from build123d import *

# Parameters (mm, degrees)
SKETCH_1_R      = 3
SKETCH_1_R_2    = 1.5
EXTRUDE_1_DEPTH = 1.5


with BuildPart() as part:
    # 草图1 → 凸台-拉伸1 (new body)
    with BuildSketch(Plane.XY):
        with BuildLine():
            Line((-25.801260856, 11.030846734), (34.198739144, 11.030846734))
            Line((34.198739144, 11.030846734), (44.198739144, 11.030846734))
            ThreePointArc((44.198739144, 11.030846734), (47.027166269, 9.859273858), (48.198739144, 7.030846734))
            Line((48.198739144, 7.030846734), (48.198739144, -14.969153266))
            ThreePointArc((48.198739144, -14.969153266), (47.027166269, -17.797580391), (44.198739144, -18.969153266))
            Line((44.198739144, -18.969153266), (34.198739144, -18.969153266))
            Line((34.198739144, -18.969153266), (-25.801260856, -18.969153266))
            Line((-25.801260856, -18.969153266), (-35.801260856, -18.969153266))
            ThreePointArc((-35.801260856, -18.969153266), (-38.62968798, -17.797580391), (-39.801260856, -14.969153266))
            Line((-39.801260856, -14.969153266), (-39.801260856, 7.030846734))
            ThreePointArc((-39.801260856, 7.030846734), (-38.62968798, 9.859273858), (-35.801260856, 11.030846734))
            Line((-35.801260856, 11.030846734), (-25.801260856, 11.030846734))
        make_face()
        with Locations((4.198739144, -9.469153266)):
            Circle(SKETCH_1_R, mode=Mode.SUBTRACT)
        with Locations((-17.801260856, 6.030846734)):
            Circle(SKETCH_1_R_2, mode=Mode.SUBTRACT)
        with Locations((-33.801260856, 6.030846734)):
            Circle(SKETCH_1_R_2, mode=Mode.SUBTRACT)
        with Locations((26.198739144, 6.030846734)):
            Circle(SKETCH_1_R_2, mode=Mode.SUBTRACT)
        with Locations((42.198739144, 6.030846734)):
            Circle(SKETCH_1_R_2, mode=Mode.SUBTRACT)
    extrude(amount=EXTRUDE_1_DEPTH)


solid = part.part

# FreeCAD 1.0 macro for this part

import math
import FreeCAD as App
import Part
import Sketcher

V = App.Vector
Q = App.Units.Quantity

doc = App.newDocument("Part")
body = doc.addObject("PartDesign::Body", "Body")

# Sketch on XY plane
sketch1 = body.newObject("Sketcher::SketchObject", "Sketch")
sketch1.AttachmentSupport = (doc.getObject("XY_Plane"), [""])
sketch1.MapMode = "FlatFace"
sketch1.addGeometry(Part.ArcOfCircle(Part.Circle(V(44.2, 7, 0), V(0, 0, 1), 4), math.radians(0), math.radians(90)), False)
sketch1.addGeometry(Part.LineSegment(V(44.2, 11, 0), V(-35.8, 11, 0)), False)
sketch1.addGeometry(Part.ArcOfCircle(Part.Circle(V(-35.8, 7, 0), V(0, 0, 1), 4), math.radians(90), math.radians(180)), False)
sketch1.addGeometry(Part.LineSegment(V(-39.8, 7, 0), V(-39.8, -15, 0)), False)
sketch1.addGeometry(Part.ArcOfCircle(Part.Circle(V(-35.8, -15, 0), V(0, 0, 1), 4), math.radians(-180), math.radians(-90)), False)
sketch1.addGeometry(Part.LineSegment(V(-35.8, -19, 0), V(44.2, -19, 0)), False)
sketch1.addGeometry(Part.ArcOfCircle(Part.Circle(V(44.2, -15, 0), V(0, 0, 1), 4), math.radians(-90), math.radians(0)), False)
sketch1.addGeometry(Part.LineSegment(V(48.2, -15, 0), V(48.2, 7, 0)), False)
sketch1.addGeometry(Part.Circle(V(4.2, -9.5, 0), V(0, 0, 1), 3), False)
sketch1.addGeometry(Part.Circle(V(42.2, 6, 0), V(0, 0, 1), 1.5), False)
sketch1.addGeometry(Part.Circle(V(26.2, 6, 0), V(0, 0, 1), 1.5), False)
sketch1.addGeometry(Part.Circle(V(-17.8, 6, 0), V(0, 0, 1), 1.5), False)
sketch1.addGeometry(Part.Circle(V(-33.8, 6, 0), V(0, 0, 1), 1.5), False)
sketch1.addConstraint(Sketcher.Constraint("Tangent", 0, 2, 1, 1))
sketch1.addConstraint(Sketcher.Constraint("Tangent", 1, 2, 2, 1))
sketch1.addConstraint(Sketcher.Constraint("Tangent", 2, 2, 3, 1))
sketch1.addConstraint(Sketcher.Constraint("Tangent", 3, 2, 4, 1))
sketch1.addConstraint(Sketcher.Constraint("Tangent", 4, 2, 5, 1))
sketch1.addConstraint(Sketcher.Constraint("Tangent", 5, 2, 6, 1))
sketch1.addConstraint(Sketcher.Constraint("Tangent", 6, 2, 7, 1))
sketch1.addConstraint(Sketcher.Constraint("Tangent", 7, 2, 0, 1))
sketch1.addConstraint(Sketcher.Constraint("Horizontal", 1))
sketch1.addConstraint(Sketcher.Constraint("Vertical", 3))
sketch1.addConstraint(Sketcher.Constraint("Horizontal", 5))
sketch1.addConstraint(Sketcher.Constraint("Vertical", 7))
sketch1.addConstraint(Sketcher.Constraint("Equal", 0, 2))
sketch1.addConstraint(Sketcher.Constraint("Equal", 2, 4))
sketch1.addConstraint(Sketcher.Constraint("Equal", 4, 6))
sketch1.addConstraint(Sketcher.Constraint("Equal", 9, 10))
sketch1.addConstraint(Sketcher.Constraint("Equal", 10, 11))
sketch1.addConstraint(Sketcher.Constraint("Equal", 11, 12))
sketch1.addConstraint(Sketcher.Constraint("Horizontal", 9, 3, 10, 3))
sketch1.addConstraint(Sketcher.Constraint("Horizontal", 10, 3, 11, 3))
sketch1.addConstraint(Sketcher.Constraint("Horizontal", 11, 3, 12, 3))
sketch1.addConstraint(Sketcher.Constraint("Diameter", 8, Q("6 mm")))
sketch1.addConstraint(Sketcher.Constraint("Diameter", 9, Q("3 mm")))
sketch1.addConstraint(Sketcher.Constraint("Radius", 0, Q("4 mm")))
sketch1.addConstraint(Sketcher.Constraint("DistanceX", 1, 2, 1, 1, Q("80 mm")))
sketch1.addConstraint(Sketcher.Constraint("DistanceY", 3, 2, 3, 1, Q("22 mm")))
sketch1.addConstraint(Sketcher.Constraint("DistanceX", 4, 3, 8, 3, Q("40 mm")))
sketch1.addConstraint(Sketcher.Constraint("DistanceX", 9, 3, 0, 3, Q("2 mm")))
sketch1.addConstraint(Sketcher.Constraint("DistanceY", 9, 3, 0, 3, Q("1 mm")))
sketch1.addConstraint(Sketcher.Constraint("DistanceX", 10, 3, 9, 3, Q("16 mm")))
sketch1.addConstraint(Sketcher.Constraint("DistanceX", 2, 3, 11, 3, Q("18 mm")))
sketch1.addConstraint(Sketcher.Constraint("DistanceX", 2, 3, 12, 3, Q("2 mm")))
sketch1.addConstraint(Sketcher.Constraint("DistanceY", 4, 3, 8, 3, Q("5.5 mm")))
sketch1.addConstraint(Sketcher.Constraint("DistanceX", -1, 1, 0, 3, Q("44.198739 mm")))
sketch1.addConstraint(Sketcher.Constraint("DistanceY", -1, 1, 0, 3, Q("7.030847 mm")))
pad1 = body.newObject("PartDesign::Pad", "Pad")
pad1.Profile = sketch1
pad1.Length = 1.5

doc.recompute()
